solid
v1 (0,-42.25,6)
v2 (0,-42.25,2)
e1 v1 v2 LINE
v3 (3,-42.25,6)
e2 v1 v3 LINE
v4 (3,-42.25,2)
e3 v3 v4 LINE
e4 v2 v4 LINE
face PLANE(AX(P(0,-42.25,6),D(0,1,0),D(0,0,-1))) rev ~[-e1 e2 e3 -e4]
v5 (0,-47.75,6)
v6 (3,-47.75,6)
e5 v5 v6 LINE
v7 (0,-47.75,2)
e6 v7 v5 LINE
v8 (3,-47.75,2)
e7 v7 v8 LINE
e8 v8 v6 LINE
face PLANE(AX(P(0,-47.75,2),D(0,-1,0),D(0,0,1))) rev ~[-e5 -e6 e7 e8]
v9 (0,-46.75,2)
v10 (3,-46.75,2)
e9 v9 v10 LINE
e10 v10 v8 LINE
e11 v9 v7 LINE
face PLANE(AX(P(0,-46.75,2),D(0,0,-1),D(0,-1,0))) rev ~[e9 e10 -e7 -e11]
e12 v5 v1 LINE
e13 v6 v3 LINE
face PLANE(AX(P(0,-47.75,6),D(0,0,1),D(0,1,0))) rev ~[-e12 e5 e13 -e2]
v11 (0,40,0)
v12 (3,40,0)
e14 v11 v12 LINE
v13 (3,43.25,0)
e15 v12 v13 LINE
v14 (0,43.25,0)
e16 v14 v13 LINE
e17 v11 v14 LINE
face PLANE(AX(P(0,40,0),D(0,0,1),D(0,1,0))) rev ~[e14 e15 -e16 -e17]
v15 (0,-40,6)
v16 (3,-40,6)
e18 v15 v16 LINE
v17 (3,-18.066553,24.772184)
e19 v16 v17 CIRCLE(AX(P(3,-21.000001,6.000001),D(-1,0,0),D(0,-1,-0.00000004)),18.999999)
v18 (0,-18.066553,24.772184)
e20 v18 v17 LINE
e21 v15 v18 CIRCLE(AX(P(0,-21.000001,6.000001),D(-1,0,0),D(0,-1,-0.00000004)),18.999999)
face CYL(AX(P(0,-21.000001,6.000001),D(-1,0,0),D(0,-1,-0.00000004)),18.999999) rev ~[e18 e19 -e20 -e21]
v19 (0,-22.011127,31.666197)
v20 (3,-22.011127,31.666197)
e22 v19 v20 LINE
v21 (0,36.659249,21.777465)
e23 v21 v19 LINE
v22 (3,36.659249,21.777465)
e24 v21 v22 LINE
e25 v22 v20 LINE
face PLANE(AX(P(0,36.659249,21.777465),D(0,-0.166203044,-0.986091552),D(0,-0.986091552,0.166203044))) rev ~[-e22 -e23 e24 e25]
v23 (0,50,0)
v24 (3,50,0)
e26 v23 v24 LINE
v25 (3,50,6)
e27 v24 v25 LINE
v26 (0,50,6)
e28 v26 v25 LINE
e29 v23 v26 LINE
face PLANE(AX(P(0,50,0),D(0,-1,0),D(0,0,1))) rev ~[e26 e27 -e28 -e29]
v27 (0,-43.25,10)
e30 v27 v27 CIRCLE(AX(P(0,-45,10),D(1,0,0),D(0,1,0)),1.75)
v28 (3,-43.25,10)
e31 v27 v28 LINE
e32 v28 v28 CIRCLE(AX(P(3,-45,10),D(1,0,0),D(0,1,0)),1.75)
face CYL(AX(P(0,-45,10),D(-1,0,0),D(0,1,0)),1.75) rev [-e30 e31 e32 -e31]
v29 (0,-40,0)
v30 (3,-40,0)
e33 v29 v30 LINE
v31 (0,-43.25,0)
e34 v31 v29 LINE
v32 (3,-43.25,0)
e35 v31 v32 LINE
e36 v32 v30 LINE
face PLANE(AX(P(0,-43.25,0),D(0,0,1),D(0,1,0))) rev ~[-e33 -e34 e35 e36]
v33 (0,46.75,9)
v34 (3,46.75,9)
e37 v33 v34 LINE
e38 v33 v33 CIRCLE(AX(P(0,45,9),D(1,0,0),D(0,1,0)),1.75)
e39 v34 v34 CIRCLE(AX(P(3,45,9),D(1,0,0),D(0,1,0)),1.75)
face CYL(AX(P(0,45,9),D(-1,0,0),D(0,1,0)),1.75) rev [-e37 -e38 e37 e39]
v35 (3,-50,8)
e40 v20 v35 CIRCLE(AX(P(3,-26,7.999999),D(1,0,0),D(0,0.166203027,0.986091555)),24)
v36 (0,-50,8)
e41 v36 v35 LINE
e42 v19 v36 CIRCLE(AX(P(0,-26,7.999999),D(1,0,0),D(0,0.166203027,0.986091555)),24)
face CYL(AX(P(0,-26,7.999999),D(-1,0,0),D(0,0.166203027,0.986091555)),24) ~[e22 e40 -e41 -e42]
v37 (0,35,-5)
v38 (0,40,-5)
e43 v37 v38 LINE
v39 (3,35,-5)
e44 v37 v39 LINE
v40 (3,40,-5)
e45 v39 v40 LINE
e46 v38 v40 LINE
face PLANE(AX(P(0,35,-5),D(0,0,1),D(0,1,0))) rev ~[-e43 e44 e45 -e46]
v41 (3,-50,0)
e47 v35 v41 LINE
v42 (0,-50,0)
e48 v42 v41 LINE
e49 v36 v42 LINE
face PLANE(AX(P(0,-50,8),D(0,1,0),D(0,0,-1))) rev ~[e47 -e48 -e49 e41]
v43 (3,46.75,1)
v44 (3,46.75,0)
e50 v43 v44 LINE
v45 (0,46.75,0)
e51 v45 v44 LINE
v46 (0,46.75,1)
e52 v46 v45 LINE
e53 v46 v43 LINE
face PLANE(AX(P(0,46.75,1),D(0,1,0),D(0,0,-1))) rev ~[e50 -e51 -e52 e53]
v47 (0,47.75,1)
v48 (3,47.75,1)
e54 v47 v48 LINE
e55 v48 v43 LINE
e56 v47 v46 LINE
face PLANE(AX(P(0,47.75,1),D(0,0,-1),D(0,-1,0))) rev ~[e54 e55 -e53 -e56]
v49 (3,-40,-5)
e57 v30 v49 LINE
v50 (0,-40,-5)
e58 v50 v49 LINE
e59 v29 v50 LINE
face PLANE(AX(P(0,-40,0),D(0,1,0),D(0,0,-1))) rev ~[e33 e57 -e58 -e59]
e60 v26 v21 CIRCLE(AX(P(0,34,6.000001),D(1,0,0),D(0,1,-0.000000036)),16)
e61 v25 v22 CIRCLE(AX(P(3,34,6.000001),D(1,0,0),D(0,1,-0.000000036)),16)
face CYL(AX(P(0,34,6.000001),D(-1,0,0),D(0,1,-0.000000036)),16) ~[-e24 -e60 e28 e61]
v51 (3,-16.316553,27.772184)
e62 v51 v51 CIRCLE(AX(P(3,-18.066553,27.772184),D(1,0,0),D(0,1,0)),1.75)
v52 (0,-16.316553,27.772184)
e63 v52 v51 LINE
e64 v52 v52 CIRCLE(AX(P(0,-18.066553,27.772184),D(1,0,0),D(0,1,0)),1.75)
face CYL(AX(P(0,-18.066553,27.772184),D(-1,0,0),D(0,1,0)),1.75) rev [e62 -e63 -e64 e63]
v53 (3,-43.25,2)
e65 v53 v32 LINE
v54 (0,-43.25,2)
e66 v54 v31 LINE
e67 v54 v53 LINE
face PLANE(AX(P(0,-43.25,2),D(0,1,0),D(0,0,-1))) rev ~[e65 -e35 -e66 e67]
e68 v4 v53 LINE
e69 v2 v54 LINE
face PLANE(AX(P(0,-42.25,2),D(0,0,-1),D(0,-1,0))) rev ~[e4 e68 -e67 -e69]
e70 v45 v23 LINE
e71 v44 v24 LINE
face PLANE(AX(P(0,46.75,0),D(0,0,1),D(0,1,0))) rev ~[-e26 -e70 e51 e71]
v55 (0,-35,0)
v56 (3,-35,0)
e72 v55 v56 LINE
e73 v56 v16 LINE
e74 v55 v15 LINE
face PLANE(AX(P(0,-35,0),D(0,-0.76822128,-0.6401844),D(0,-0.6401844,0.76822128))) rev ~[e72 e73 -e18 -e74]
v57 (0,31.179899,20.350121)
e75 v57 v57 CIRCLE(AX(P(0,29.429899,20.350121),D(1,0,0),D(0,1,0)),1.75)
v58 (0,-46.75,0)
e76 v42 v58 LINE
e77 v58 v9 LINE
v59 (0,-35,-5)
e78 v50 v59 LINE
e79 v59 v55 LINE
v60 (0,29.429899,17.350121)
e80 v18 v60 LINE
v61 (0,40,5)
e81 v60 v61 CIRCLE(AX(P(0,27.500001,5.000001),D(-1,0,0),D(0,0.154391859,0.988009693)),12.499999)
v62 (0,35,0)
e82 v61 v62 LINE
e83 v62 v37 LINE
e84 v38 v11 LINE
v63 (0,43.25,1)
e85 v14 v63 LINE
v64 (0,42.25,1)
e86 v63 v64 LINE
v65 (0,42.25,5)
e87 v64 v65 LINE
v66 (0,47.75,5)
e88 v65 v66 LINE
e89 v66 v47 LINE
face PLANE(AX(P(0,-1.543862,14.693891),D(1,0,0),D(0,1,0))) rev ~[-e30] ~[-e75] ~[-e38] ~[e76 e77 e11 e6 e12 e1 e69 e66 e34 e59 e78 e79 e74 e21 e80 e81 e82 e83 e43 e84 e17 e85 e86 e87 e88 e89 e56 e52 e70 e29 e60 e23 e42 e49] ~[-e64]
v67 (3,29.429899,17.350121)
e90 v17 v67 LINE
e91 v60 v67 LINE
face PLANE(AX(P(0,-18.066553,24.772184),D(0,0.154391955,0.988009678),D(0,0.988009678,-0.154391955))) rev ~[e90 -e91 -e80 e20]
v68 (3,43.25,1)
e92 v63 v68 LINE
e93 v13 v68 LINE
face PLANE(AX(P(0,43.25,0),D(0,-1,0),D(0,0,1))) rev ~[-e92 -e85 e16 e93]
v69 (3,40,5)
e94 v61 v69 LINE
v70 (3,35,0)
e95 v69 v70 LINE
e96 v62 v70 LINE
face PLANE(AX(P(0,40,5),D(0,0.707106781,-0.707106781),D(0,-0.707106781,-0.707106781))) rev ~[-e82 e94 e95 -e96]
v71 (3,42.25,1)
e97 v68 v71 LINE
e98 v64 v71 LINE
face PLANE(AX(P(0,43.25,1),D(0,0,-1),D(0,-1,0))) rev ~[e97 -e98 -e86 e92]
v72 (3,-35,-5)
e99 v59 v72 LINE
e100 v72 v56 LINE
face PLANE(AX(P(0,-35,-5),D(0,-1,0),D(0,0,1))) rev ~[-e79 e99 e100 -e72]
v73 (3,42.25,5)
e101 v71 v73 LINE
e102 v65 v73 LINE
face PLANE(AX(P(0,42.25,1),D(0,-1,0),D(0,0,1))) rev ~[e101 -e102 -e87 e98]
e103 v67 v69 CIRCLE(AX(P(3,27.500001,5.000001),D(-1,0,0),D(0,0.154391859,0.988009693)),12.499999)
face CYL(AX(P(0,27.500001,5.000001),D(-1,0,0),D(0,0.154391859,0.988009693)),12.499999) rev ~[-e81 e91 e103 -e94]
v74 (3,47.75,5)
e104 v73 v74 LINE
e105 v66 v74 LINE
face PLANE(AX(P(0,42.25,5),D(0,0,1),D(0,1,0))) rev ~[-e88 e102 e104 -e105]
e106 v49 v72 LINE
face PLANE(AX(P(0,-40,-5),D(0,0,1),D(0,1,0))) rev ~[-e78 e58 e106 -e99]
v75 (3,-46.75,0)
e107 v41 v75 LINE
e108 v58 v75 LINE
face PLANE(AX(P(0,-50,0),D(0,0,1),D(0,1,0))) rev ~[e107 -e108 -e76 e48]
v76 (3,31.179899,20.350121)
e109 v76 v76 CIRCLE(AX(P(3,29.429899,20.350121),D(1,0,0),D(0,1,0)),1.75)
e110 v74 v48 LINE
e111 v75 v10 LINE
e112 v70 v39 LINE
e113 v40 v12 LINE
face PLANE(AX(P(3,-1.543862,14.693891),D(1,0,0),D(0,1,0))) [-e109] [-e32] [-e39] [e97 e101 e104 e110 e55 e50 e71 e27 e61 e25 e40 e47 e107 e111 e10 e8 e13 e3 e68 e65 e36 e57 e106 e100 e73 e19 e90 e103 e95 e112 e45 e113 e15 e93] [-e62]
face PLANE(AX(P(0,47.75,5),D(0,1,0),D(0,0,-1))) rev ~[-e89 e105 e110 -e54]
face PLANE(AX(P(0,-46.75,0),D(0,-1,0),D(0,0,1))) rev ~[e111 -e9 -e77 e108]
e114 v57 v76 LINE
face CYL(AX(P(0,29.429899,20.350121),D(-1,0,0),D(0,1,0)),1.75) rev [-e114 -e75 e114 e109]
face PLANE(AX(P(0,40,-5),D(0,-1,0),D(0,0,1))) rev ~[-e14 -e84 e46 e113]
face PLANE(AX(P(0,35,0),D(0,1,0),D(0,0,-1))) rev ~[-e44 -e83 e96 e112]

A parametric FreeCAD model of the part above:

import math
import FreeCAD as App
import Part
import Sketcher
Q = App.Units.Quantity

doc = App.newDocument("Part")
params = doc.addObject("Spreadsheet::Sheet", "Params")
for row, (alias, value) in enumerate([
    ("sketch1_radius", "18.999999 mm"),
    ("sketch1_radius2", "16 mm"),
    ("sketch1_radius3", "24 mm"),
    ("sketch1_diameter", "3.5 mm"),
    ("sketch1_radius4", "12.499999 mm"),
    ("pad1_length", "3 mm"),
], start=1):
    params.set(f"A{row}", alias)
    params.set(f"B{row}", "=" + value)
    params.setAlias(f"B{row}", alias)

body = doc.addObject("PartDesign::Body", "Body")

sketch1 = body.newObject("Sketcher::SketchObject", "Sketch")
sketch1.AttachmentSupport = (doc.getObject("YZ_Plane"), [""])
sketch1.MapMode = "FlatFace"
sketch1.addGeometry([
    Part.LineSegment(App.Vector(-50, 8, 0), App.Vector(-50, 0, 0)),
    Part.LineSegment(App.Vector(-50, 0, 0), App.Vector(-46.8, 0, 0)),
    Part.LineSegment(App.Vector(-46.8, 0, 0), App.Vector(-46.8, 2, 0)),
    Part.LineSegment(App.Vector(-46.8, 2, 0), App.Vector(-47.8, 2, 0)),
    Part.LineSegment(App.Vector(-47.8, 2, 0), App.Vector(-47.8, 6, 0)),
    Part.LineSegment(App.Vector(-47.8, 6, 0), App.Vector(-42.2, 6, 0)),
    Part.LineSegment(App.Vector(-42.2, 6, 0), App.Vector(-42.2, 2, 0)),
    Part.LineSegment(App.Vector(-42.2, 2, 0), App.Vector(-43.2, 2, 0)),
    Part.LineSegment(App.Vector(-43.2, 2, 0), App.Vector(-43.2, 0, 0)),
    Part.LineSegment(App.Vector(-43.2, 0, 0), App.Vector(-40, 0, 0)),
    Part.LineSegment(App.Vector(-40, 0, 0), App.Vector(-40, -5, 0)),
    Part.LineSegment(App.Vector(-40, -5, 0), App.Vector(-35, -5, 0)),
    Part.LineSegment(App.Vector(-35, -5, 0), App.Vector(-35, 0, 0)),
    Part.LineSegment(App.Vector(-35, 0, 0), App.Vector(-40, 6, 0)),
    Part.ArcOfCircle(Part.Circle(App.Vector(-21, 6, 0), App.Vector(0, 0, 1), 19), math.radians(81), math.radians(180)),
    Part.LineSegment(App.Vector(-18.1, 24.8, 0), App.Vector(29.4, 17.4, 0)),
    Part.ArcOfCircle(Part.Circle(App.Vector(27.5, 5, 0), App.Vector(0, 0, 1), 12.5), math.radians(0), math.radians(81)),
    Part.LineSegment(App.Vector(40, 5, 0), App.Vector(35, 0, 0)),
    Part.LineSegment(App.Vector(35, 0, 0), App.Vector(35, -5, 0)),
    Part.LineSegment(App.Vector(35, -5, 0), App.Vector(40, -5, 0)),
    Part.LineSegment(App.Vector(40, -5, 0), App.Vector(40, 0, 0)),
    Part.LineSegment(App.Vector(40, 0, 0), App.Vector(43.2, 0, 0)),
    Part.LineSegment(App.Vector(43.2, 0, 0), App.Vector(43.2, 1, 0)),
    Part.LineSegment(App.Vector(43.2, 1, 0), App.Vector(42.2, 1, 0)),
    Part.LineSegment(App.Vector(42.2, 1, 0), App.Vector(42.2, 5, 0)),
    Part.LineSegment(App.Vector(42.2, 5, 0), App.Vector(47.8, 5, 0)),
    Part.LineSegment(App.Vector(47.8, 5, 0), App.Vector(47.8, 1, 0)),
    Part.LineSegment(App.Vector(47.8, 1, 0), App.Vector(46.8, 1, 0)),
    Part.LineSegment(App.Vector(46.8, 1, 0), App.Vector(46.8, 0, 0)),
    Part.LineSegment(App.Vector(46.8, 0, 0), App.Vector(50, 0, 0)),
    Part.LineSegment(App.Vector(50, 0, 0), App.Vector(50, 6, 0)),
    Part.ArcOfCircle(Part.Circle(App.Vector(34, 6, 0), App.Vector(0, 0, 1), 16), math.radians(0), math.radians(80)),
    Part.LineSegment(App.Vector(36.7, 21.8, 0), App.Vector(-22, 31.7, 0)),
    Part.ArcOfCircle(Part.Circle(App.Vector(-26, 8, 0), App.Vector(0, 0, 1), 24), math.radians(80), math.radians(180)),
    Part.Circle(App.Vector(-45, 10, 0), App.Vector(0, 0, 1), 1.8),
    Part.Circle(App.Vector(45, 9, 0), App.Vector(0, 0, 1), 1.8),
    Part.Circle(App.Vector(-18.1, 27.8, 0), App.Vector(0, 0, 1), 1.8),
    Part.Circle(App.Vector(29.4, 20.4, 0), App.Vector(0, 0, 1), 1.8),
], False)
sketch1.addConstraint([
    Sketcher.Constraint("Coincident", 0, 2, 1, 1),
    Sketcher.Constraint("Coincident", 1, 2, 2, 1),
    Sketcher.Constraint("Coincident", 2, 2, 3, 1),
    Sketcher.Constraint("Coincident", 3, 2, 4, 1),
    Sketcher.Constraint("Coincident", 4, 2, 5, 1),
    Sketcher.Constraint("Coincident", 5, 2, 6, 1),
    Sketcher.Constraint("Coincident", 6, 2, 7, 1),
    Sketcher.Constraint("Coincident", 7, 2, 8, 1),
    Sketcher.Constraint("Coincident", 8, 2, 9, 1),
    Sketcher.Constraint("Coincident", 9, 2, 10, 1),
    Sketcher.Constraint("Coincident", 10, 2, 11, 1),
    Sketcher.Constraint("Coincident", 11, 2, 12, 1),
    Sketcher.Constraint("Coincident", 12, 2, 13, 1),
    Sketcher.Constraint("Coincident", 13, 2, 14, 2),
    Sketcher.Constraint("Tangent", 14, 1, 15, 1),
    Sketcher.Constraint("Tangent", 15, 2, 16, 2),
    Sketcher.Constraint("Coincident", 16, 1, 17, 1),
    Sketcher.Constraint("Coincident", 17, 2, 18, 1),
    Sketcher.Constraint("Coincident", 18, 2, 19, 1),
    Sketcher.Constraint("Coincident", 19, 2, 20, 1),
    Sketcher.Constraint("Coincident", 20, 2, 21, 1),
    Sketcher.Constraint("Coincident", 21, 2, 22, 1),
    Sketcher.Constraint("Coincident", 22, 2, 23, 1),
    Sketcher.Constraint("Coincident", 23, 2, 24, 1),
    Sketcher.Constraint("Coincident", 24, 2, 25, 1),
    Sketcher.Constraint("Coincident", 25, 2, 26, 1),
    Sketcher.Constraint("Coincident", 26, 2, 27, 1),
    Sketcher.Constraint("Coincident", 27, 2, 28, 1),
    Sketcher.Constraint("Coincident", 28, 2, 29, 1),
    Sketcher.Constraint("Coincident", 29, 2, 30, 1),
    Sketcher.Constraint("Tangent", 30, 2, 31, 1),
    Sketcher.Constraint("Tangent", 31, 2, 32, 1),
    Sketcher.Constraint("Tangent", 32, 2, 33, 1),
    Sketcher.Constraint("Tangent", 33, 2, 0, 1),
    Sketcher.Constraint("Vertical", 0),
    Sketcher.Constraint("Horizontal", 1),
    Sketcher.Constraint("Vertical", 2),
    Sketcher.Constraint("Horizontal", 3),
    Sketcher.Constraint("Vertical", 4),
    Sketcher.Constraint("Horizontal", 5),
    Sketcher.Constraint("Vertical", 6),
    Sketcher.Constraint("Horizontal", 7),
    Sketcher.Constraint("Vertical", 8),
    Sketcher.Constraint("Horizontal", 9),
    Sketcher.Constraint("Vertical", 10),
    Sketcher.Constraint("Horizontal", 11),
    Sketcher.Constraint("Vertical", 12),
    Sketcher.Constraint("Vertical", 18),
    Sketcher.Constraint("Horizontal", 19),
    Sketcher.Constraint("Vertical", 20),
    Sketcher.Constraint("Horizontal", 21),
    Sketcher.Constraint("Vertical", 22),
    Sketcher.Constraint("Horizontal", 23),
    Sketcher.Constraint("Vertical", 24),
    Sketcher.Constraint("Horizontal", 25),
    Sketcher.Constraint("Vertical", 26),
    Sketcher.Constraint("Horizontal", 27),
    Sketcher.Constraint("Vertical", 28),
    Sketcher.Constraint("Horizontal", 29),
    Sketcher.Constraint("Vertical", 30),
    Sketcher.Constraint("Equal", 34, 35),
    Sketcher.Constraint("Equal", 35, 36),
    Sketcher.Constraint("Equal", 36, 37),
    Sketcher.Constraint("Symmetric", 10, 2, 16, 1, -1, 1),
    Sketcher.Constraint("Symmetric", 12, 2, 17, 2, -1, 1),
    Sketcher.Constraint("Symmetric", 9, 2, 20, 2, -1, 1),
    Sketcher.Constraint("Symmetric", 1, 2, 28, 2, -1, 1),
    Sketcher.Constraint("Symmetric", 8, 2, 21, 2, -2),
    Sketcher.Constraint("Symmetric", 0, 2, 29, 2, -2),
    Sketcher.Constraint("PointOnObject", 12, 2, -1),
    Sketcher.Constraint("Horizontal", 14, 3, 31, 3),
    Sketcher.Constraint("Horizontal", 31, 3, 4, 2),
    Sketcher.Constraint("Horizontal", 3, 2, 6, 2),
    Sketcher.Constraint("Horizontal", 5, 2, 13, 2),
    Sketcher.Constraint("Horizontal", 11, 2, 18, 2),
    Sketcher.Constraint("Horizontal", 16, 1, 24, 2),
    Sketcher.Constraint("Horizontal", 23, 2, 26, 2),
    Sketcher.Constraint("Vertical", 10, 2, 13, 2),
    Sketcher.Constraint("Vertical", 36, 3, 14, 1),
    Sketcher.Constraint("Vertical", 37, 3, 15, 2),
    Sketcher.Constraint("Equal", 3, 7),
    Sketcher.Constraint("Equal", 1, 9),
    Sketcher.Constraint("Equal", 7, 23),
    Sketcher.Constraint("Equal", 5, 25),
    Sketcher.Constraint("Equal", 19, 10),
    Sketcher.Constraint("Equal", 27, 22),
    Sketcher.Constraint("Equal", 6, 24),
    Sketcher.Constraint("Radius", 14, Q("18.999999 mm")),
    Sketcher.Constraint("Radius", 31, Q("16 mm")),
    Sketcher.Constraint("Radius", 33, Q("24 mm")),
    Sketcher.Constraint("Diameter", 34, Q("3.5 mm")),
    Sketcher.Constraint("Radius", 16, Q("12.499999 mm")),
    Sketcher.Constraint("DistanceX", 3, 2, 3, 1, Q("1 mm")),
    Sketcher.Constraint("DistanceX", 11, 1, 11, 2, Q("5 mm")),
    Sketcher.Constraint("DistanceY", 0, 2, 0, 1, Q("8 mm")),
    Sketcher.Constraint("DistanceY", 2, 1, 2, 2, Q("2 mm")),
    Sketcher.Constraint("DistanceX", 5, 1, 5, 2, Q("5.5 mm")),
    Sketcher.Constraint("DistanceX", 14, 3, -1, 1, Q("21.000001 mm")),
    Sketcher.Constraint("DistanceY", -1, 1, 16, 3, Q("5.000001 mm")),
    Sketcher.Constraint("DistanceX", -1, 1, 31, 3, Q("34 mm")),
    Sketcher.Constraint("DistanceX", 34, 3, -1, 1, Q("45 mm")),
    Sketcher.Constraint("DistanceY", -1, 1, 34, 3, Q("10 mm")),
    Sketcher.Constraint("DistanceX", -1, 1, 35, 3, Q("45 mm")),
    Sketcher.Constraint("DistanceY", -1, 1, 35, 3, Q("9 mm")),
    Sketcher.Constraint("DistanceY", 14, 1, 36, 3, Q("3 mm")),
    Sketcher.Constraint("DistanceY", 15, 2, 37, 3, Q("3 mm")),
])
sketch1.setExpression("Constraints[87]", "Params.sketch1_radius")
sketch1.setExpression("Constraints[88]", "Params.sketch1_radius2")
sketch1.setExpression("Constraints[89]", "Params.sketch1_radius3")
sketch1.setExpression("Constraints[90]", "Params.sketch1_diameter")
sketch1.setExpression("Constraints[91]", "Params.sketch1_radius4")
pad1 = body.newObject("PartDesign::Pad", "Pad")
pad1.Profile = sketch1
pad1.setExpression("Length", "Params.pad1_length")

doc.recompute()
